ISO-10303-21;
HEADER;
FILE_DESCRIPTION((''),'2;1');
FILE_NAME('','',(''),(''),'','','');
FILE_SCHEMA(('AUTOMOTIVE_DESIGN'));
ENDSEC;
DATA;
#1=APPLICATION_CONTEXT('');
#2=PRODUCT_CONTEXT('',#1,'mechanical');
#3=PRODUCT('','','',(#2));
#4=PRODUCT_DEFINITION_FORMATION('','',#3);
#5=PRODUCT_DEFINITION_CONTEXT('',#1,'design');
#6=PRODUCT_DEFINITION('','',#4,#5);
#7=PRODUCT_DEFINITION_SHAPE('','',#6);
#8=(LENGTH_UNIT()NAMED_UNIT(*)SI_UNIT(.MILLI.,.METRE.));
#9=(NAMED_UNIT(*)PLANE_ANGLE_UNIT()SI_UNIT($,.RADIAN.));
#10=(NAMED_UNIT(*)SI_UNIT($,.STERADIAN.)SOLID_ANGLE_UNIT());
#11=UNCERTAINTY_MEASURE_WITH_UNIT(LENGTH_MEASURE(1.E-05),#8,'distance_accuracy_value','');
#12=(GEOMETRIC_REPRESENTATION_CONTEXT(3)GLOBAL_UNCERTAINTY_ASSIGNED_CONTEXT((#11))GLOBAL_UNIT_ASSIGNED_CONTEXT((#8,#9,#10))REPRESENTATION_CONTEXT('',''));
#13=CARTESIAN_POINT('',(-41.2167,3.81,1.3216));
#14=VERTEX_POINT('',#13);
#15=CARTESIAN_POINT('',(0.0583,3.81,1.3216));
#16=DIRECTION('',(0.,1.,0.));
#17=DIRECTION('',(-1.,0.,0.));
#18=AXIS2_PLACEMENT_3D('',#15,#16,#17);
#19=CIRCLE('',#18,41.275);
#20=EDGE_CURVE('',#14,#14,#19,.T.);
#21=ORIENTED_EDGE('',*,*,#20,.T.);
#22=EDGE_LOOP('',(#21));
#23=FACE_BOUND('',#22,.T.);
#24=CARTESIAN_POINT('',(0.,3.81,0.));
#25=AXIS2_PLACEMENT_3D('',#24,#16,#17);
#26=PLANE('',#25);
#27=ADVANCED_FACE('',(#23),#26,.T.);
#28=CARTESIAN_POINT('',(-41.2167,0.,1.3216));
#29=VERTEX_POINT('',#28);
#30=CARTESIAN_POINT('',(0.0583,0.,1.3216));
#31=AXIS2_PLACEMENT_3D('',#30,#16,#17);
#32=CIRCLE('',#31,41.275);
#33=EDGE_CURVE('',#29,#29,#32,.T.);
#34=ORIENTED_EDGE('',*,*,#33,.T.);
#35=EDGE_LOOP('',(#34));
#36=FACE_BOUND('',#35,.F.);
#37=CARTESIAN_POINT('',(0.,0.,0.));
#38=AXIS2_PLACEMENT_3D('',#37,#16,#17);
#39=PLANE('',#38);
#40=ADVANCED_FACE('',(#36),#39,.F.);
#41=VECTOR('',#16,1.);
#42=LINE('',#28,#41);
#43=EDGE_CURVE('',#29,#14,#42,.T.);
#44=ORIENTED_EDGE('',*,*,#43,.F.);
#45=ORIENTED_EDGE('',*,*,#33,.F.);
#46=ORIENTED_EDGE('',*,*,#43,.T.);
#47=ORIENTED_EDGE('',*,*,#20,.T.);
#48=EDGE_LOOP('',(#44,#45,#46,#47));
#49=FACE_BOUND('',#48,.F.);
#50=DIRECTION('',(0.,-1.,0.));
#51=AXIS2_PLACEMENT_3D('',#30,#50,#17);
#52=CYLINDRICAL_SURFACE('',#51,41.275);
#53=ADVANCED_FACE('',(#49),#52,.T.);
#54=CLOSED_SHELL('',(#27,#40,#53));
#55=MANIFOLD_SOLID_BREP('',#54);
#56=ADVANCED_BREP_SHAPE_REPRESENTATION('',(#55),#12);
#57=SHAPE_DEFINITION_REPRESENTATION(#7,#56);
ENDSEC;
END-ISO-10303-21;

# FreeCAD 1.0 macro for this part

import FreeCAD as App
import Part
import Sketcher
from FreeCAD import Vector
Q = App.Units.Quantity

doc = App.newDocument("Part")
body = doc.addObject("PartDesign::Body", "Body")

# Sketch on XZ plane
sketch1 = body.newObject("Sketcher::SketchObject", "Sketch")
sketch1.AttachmentSupport = (doc.getObject("XZ_Plane"), [""])
sketch1.MapMode = "FlatFace"
sketch1.addGeometry(Part.Circle(Vector(0, 1, 0), Vector(0, 0, 1), 41), False)
sketch1.addConstraint([
    Sketcher.Constraint("Diameter", 0, Q("3.25 in")),
    Sketcher.Constraint("DistanceX", -1, 1, 0, 3, Q("0.0023 in")),
    Sketcher.Constraint("DistanceY", -1, 1, 0, 3, Q("1.3216 mm")),
])
pad1 = body.newObject("PartDesign::Pad", "Pad")
pad1.Profile = sketch1
pad1.Length = Q("0.15 in")
pad1.Reversed = True

doc.recompute()
